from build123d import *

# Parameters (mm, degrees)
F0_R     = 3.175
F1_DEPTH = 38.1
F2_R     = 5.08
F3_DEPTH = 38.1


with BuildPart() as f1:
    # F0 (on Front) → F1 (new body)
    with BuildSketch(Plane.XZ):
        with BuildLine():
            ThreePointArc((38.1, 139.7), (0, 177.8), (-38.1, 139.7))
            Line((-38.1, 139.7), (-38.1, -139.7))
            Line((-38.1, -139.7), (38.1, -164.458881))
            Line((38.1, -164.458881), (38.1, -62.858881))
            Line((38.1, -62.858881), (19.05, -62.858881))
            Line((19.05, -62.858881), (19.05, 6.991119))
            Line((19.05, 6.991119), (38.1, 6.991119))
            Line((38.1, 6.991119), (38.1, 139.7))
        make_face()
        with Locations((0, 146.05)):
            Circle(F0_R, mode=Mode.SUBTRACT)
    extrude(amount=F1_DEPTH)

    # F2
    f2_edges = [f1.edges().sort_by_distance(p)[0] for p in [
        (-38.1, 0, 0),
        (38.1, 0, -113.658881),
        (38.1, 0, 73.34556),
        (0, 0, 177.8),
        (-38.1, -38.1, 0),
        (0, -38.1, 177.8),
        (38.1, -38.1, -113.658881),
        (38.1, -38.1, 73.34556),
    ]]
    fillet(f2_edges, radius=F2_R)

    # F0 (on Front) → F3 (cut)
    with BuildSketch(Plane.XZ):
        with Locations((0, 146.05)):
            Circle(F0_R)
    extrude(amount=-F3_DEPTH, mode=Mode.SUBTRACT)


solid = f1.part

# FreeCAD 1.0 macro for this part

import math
import FreeCAD as App
import Part
import Sketcher
Q = App.Units.Quantity


def edges_at(feature, points):
    """Names of the edges that pass closest to the given points."""
    edges = feature.Shape.Edges
    near = lambda p: min(range(len(edges)), key=lambda i: edges[i].distToShape(Part.Vertex(*p))[0])
    return sorted({f"Edge{near(p) + 1}" for p in points})

doc = App.newDocument("Part")
body = doc.addObject("PartDesign::Body", "Body")

sketch1 = doc.addObject("Sketcher::SketchObject", "Sketch")
body.addObject(sketch1)
sketch1.AttachmentSupport = (doc.XZ_Plane, [""])
sketch1.MapMode = "FlatFace"
sketch1.addGeometry(Part.ArcOfCircle(Part.Circle(App.Vector(0, 139.7, 0), App.Vector(0, 0, 1), 38.1), math.radians(0), math.radians(180)), False)
sketch1.addGeometry(Part.LineSegment(App.Vector(-38.1, 139.7, 0), App.Vector(-38.1, -139.7, 0)), False)
sketch1.addGeometry(Part.LineSegment(App.Vector(-38.1, -139.7, 0), App.Vector(38.1, -164.5, 0)), False)
sketch1.addGeometry(Part.LineSegment(App.Vector(38.1, -164.5, 0), App.Vector(38.1, -62.9, 0)), False)
sketch1.addGeometry(Part.LineSegment(App.Vector(38.1, -62.9, 0), App.Vector(19.1, -62.9, 0)), False)
sketch1.addGeometry(Part.LineSegment(App.Vector(19.1, -62.9, 0), App.Vector(19.1, 7, 0)), False)
sketch1.addGeometry(Part.LineSegment(App.Vector(19.1, 7, 0), App.Vector(38.1, 7, 0)), False)
sketch1.addGeometry(Part.LineSegment(App.Vector(38.1, 7, 0), App.Vector(38.1, 139.7, 0)), False)
sketch1.addGeometry(Part.Circle(App.Vector(0, 146.1, 0), App.Vector(0, 0, 1), 3.2), False)
sketch1.addConstraint(Sketcher.Constraint("Tangent", 0, 2, 1, 1))
sketch1.addConstraint(Sketcher.Constraint("Coincident", 1, 2, 2, 1))
sketch1.addConstraint(Sketcher.Constraint("Coincident", 2, 2, 3, 1))
sketch1.addConstraint(Sketcher.Constraint("Coincident", 3, 2, 4, 1))
sketch1.addConstraint(Sketcher.Constraint("Coincident", 4, 2, 5, 1))
sketch1.addConstraint(Sketcher.Constraint("Coincident", 5, 2, 6, 1))
sketch1.addConstraint(Sketcher.Constraint("Coincident", 6, 2, 7, 1))
sketch1.addConstraint(Sketcher.Constraint("Tangent", 7, 2, 0, 1))
sketch1.addConstraint(Sketcher.Constraint("Vertical", 1))
sketch1.addConstraint(Sketcher.Constraint("Vertical", 3))
sketch1.addConstraint(Sketcher.Constraint("Horizontal", 4))
sketch1.addConstraint(Sketcher.Constraint("Vertical", 5))
sketch1.addConstraint(Sketcher.Constraint("Horizontal", 6))
sketch1.addConstraint(Sketcher.Constraint("Vertical", 7))
sketch1.addConstraint(Sketcher.Constraint("Symmetric", 1, 2, 7, 2, -1, 1))
sketch1.addConstraint(Sketcher.Constraint("PointOnObject", 8, 3, -2))
sketch1.addConstraint(Sketcher.Constraint("Vertical", 3, 2, 6, 2))
sketch1.addConstraint(Sketcher.Constraint("Radius", 0, Q("1.5 in")))
sketch1.addConstraint(Sketcher.Constraint("Diameter", 8, Q("0.25 in")))
sketch1.addConstraint(Sketcher.Constraint("DistanceY", 1, 2, 1, 1, Q("11 in")))
sketch1.addConstraint(Sketcher.Constraint("DistanceY", 3, 1, 3, 2, Q("4 in")))
sketch1.addConstraint(Sketcher.Constraint("Angle", 2, Q("-18 deg")))
sketch1.addConstraint(Sketcher.Constraint("DistanceX", 4, 2, 4, 1, Q("0.75 in")))
sketch1.addConstraint(Sketcher.Constraint("DistanceY", 5, 1, 5, 2, Q("2.75 in")))
sketch1.addConstraint(Sketcher.Constraint("DistanceY", -1, 1, 8, 3, Q("5.75 in")))
pad1 = doc.addObject("PartDesign::Pad", "Pad")
body.addObject(pad1)
pad1.Profile = sketch1
pad1.Length = Q("1.5 in")
doc.recompute()

fillet = doc.addObject("PartDesign::Fillet", "Fillet")
body.addObject(fillet)
fillet.Base = (pad1, edges_at(pad1, [
    (-38.1, 0, 0),
    (38.1, 0, -113.659),
    (38.1, 0, 73.346),
    (0, 0, 177.8),
    (-38.1, -38.1, 0),
    (0, -38.1, 177.8),
    (38.1, -38.1, -113.659),
    (38.1, -38.1, 73.346),
]))
fillet.Radius = Q("0.2 in")

sketch2 = doc.addObject("Sketcher::SketchObject", "Sketch001")
body.addObject(sketch2)
sketch2.AttachmentSupport = (doc.XZ_Plane, [""])
sketch2.MapMode = "FlatFace"
sketch2.addGeometry(Part.Circle(App.Vector(0, 146.1, 0), App.Vector(0, 0, 1), 3.2), False)
sketch2.addConstraint(Sketcher.Constraint("PointOnObject", 0, 3, -2))
sketch2.addConstraint(Sketcher.Constraint("Diameter", 0, Q("0.25 in")))
sketch2.addConstraint(Sketcher.Constraint("DistanceY", -1, 1, 0, 3, Q("5.75 in")))
pocket1 = doc.addObject("PartDesign::Pocket", "Pocket")
body.addObject(pocket1)
pocket1.Profile = sketch2
pocket1.Length = Q("1.5 in")

doc.recompute()
